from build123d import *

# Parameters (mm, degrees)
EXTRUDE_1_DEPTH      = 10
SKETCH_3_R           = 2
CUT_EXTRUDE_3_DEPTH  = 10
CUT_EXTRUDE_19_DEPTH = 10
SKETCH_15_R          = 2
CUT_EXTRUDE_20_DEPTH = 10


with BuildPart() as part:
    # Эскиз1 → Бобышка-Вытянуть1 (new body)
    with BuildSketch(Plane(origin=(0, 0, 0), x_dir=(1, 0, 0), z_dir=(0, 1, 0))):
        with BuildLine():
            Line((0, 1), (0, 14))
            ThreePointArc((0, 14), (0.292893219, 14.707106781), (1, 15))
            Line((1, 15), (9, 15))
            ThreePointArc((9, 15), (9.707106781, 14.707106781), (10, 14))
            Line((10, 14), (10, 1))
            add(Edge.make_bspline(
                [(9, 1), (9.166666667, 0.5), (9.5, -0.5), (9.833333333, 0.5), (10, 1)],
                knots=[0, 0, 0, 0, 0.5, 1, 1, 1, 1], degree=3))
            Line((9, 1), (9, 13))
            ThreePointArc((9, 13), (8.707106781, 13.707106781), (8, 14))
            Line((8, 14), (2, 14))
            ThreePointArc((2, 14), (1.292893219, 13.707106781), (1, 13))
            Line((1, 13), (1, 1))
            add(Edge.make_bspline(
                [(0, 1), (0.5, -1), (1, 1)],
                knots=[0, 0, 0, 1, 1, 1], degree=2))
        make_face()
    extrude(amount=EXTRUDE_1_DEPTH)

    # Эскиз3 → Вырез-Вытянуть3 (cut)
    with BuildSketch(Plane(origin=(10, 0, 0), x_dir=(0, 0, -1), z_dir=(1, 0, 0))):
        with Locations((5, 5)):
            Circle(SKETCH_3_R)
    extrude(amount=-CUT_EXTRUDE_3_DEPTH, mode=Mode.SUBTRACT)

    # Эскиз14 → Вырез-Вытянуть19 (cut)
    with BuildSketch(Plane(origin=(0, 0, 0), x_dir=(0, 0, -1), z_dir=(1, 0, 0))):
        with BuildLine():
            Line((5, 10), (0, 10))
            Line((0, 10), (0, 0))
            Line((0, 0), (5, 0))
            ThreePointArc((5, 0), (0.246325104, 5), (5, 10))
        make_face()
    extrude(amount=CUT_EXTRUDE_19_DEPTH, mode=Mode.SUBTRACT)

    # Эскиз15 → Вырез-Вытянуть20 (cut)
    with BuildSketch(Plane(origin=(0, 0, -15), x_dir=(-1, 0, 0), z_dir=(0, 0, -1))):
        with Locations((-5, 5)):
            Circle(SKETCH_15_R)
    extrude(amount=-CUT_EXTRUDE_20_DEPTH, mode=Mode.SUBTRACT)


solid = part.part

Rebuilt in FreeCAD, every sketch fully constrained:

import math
import FreeCAD as App
import Part
import Sketcher

V = App.Vector
Q = App.Units.Quantity

doc = App.newDocument("Part")
body = doc.addObject("PartDesign::Body", "Body")

# Sketch on XZ plane
sketch1 = doc.addObject("Sketcher::SketchObject", "Sketch")
body.addObject(sketch1)
sketch1.AttachmentSupport = (doc.XZ_Plane, [""])
sketch1.MapMode = "FlatFace"
sketch1.addGeometry([
    Part.LineSegment(V(0, -14, 0), V(0, -1, 0)),  # 0
    Part.BSplineCurve([V(0, -1, 0), V(0.5, 1, 0), V(1, -1, 0)], [3, 3], [0, 1], False, 2, [1, 1, 1], False),  # 1
    Part.LineSegment(V(1, -1, 0), V(1, -13, 0)),  # 2
    Part.ArcOfCircle(Part.Circle(V(2, -13, 0), V(0, 0, 1), 1), math.radians(-180), math.radians(-90)),  # 3
    Part.LineSegment(V(2, -14, 0), V(8, -14, 0)),  # 4
    Part.ArcOfCircle(Part.Circle(V(8, -13, 0), V(0, 0, 1), 1), math.radians(-90), math.radians(0)),  # 5
    Part.LineSegment(V(9, -13, 0), V(9, -1, 0)),  # 6
    Part.BSplineCurve([V(9, -1, 0), V(9.166667, -0.5, 0), V(9.5, 0.5, 0), V(9.833333, -0.5, 0), V(10, -1, 0)], [4, 1, 4], [0, 0.5, 1], False, 3, [1, 1, 1, 1, 1], False),  # 7
    Part.LineSegment(V(10, -1, 0), V(10, -14, 0)),  # 8
    Part.ArcOfCircle(Part.Circle(V(9, -14, 0), V(0, 0, 1), 1), math.radians(-90), math.radians(0)),  # 9
    Part.LineSegment(V(9, -15, 0), V(1, -15, 0)),  # 10
    Part.ArcOfCircle(Part.Circle(V(1, -14, 0), V(0, 0, 1), 1), math.radians(-180), math.radians(-90)),  # 11
], False)
sketch1.addConstraint([
    Sketcher.Constraint("Block", 1),
    Sketcher.Constraint("Block", 7),
    Sketcher.Constraint("Coincident", 0, 2, 1, 1),
    Sketcher.Constraint("Coincident", 1, 2, 2, 1),
    Sketcher.Constraint("Coincident", 2, 2, 3, 1),
    Sketcher.Constraint("Coincident", 3, 2, 4, 1),
    Sketcher.Constraint("Coincident", 4, 2, 5, 1),
    Sketcher.Constraint("Coincident", 5, 2, 6, 1),
    Sketcher.Constraint("Coincident", 6, 2, 7, 1),
    Sketcher.Constraint("Coincident", 7, 2, 8, 1),
    Sketcher.Constraint("Coincident", 8, 2, 9, 2),
    Sketcher.Constraint("Coincident", 9, 1, 10, 1),
    Sketcher.Constraint("Coincident", 10, 2, 11, 2),
    Sketcher.Constraint("Coincident", 11, 1, 0, 1),
    Sketcher.Constraint("Vertical", 0),
    Sketcher.Constraint("Vertical", 2),
    Sketcher.Constraint("Horizontal", 4),
    Sketcher.Constraint("Vertical", 6),
    Sketcher.Constraint("Vertical", 8),
    Sketcher.Constraint("Horizontal", 10),
    Sketcher.Constraint("Radius", 3, Q("1 mm")),
    Sketcher.Constraint("Radius", 5, Q("1 mm")),
    Sketcher.Constraint("Radius", 9, Q("1 mm")),
    Sketcher.Constraint("Radius", 11, Q("1 mm")),
    Sketcher.Constraint("DistanceX", 4, 1, 4, 2, Q("6 mm")),
    Sketcher.Constraint("DistanceX", 10, 2, 10, 1, Q("8 mm")),
    Sketcher.Constraint("DistanceY", 0, 1, 0, 2, Q("13 mm")),
    Sketcher.Constraint("DistanceY", 2, 2, 2, 1, Q("12 mm")),
    Sketcher.Constraint("DistanceY", 6, 1, 6, 2, Q("12 mm")),
    Sketcher.Constraint("DistanceY", 8, 2, 8, 1, Q("13 mm")),
    Sketcher.Constraint("DistanceY", 3, 3, -1, 1, Q("13 mm")),
    Sketcher.Constraint("DistanceY", 9, 3, -1, 1, Q("14 mm")),
    Sketcher.Constraint("DistanceX", -1, 1, 3, 2, Q("2 mm")),
    Sketcher.Constraint("DistanceX", -1, 1, 9, 1, Q("9 mm")),
])
pad1 = doc.addObject("PartDesign::Pad", "Pad")
body.addObject(pad1)
pad1.Profile = sketch1
pad1.Length = 10
pad1.Reversed = True

# Sketch on YZ plane
sketch2 = doc.addObject("Sketcher::SketchObject", "Sketch001")
body.addObject(sketch2)
sketch2.AttachmentSupport = (doc.YZ_Plane, [""])
sketch2.MapMode = "FlatFace"
sketch2.AttachmentOffset = App.Placement(V(0, 0, 10), App.Rotation())
sketch2.addGeometry(Part.Circle(V(5, -5, 0), V(0, 0, 1), 2), False)
sketch2.addConstraint([
    Sketcher.Constraint("Diameter", 0, Q("4 mm")),
    Sketcher.Constraint("DistanceX", -1, 1, 0, 3, Q("5 mm")),
    Sketcher.Constraint("DistanceY", 0, 3, -1, 1, Q("5 mm")),
])
pocket1 = doc.addObject("PartDesign::Pocket", "Pocket")
body.addObject(pocket1)
pocket1.Profile = sketch2
pocket1.Length = 10

# Sketch on YZ plane
sketch3 = doc.addObject("Sketcher::SketchObject", "Sketch002")
body.addObject(sketch3)
sketch3.AttachmentSupport = (doc.YZ_Plane, [""])
sketch3.MapMode = "FlatFace"
sketch3.addGeometry([
    Part.LineSegment(V(10, -5, 0), V(10, 0, 0)),
    Part.LineSegment(V(10, 0, 0), V(0, 0, 0)),
    Part.LineSegment(V(0, 0, 0), V(0, -5, 0)),
    Part.ArcOfCircle(Part.Circle(V(5, -5, 0), V(0, 0, 1), 5), math.radians(3), math.radians(177)),
], False)
sketch3.addConstraint([
    Sketcher.Constraint("Coincident", 0, 2, 1, 1),
    Sketcher.Constraint("Coincident", 1, 2, 2, 1),
    Sketcher.Constraint("Coincident", 2, 2, 3, 2),
    Sketcher.Constraint("Coincident", 3, 1, 0, 1),
    Sketcher.Constraint("Vertical", 0),
    Sketcher.Constraint("Horizontal", 1),
    Sketcher.Constraint("Vertical", 2),
    Sketcher.Constraint("Coincident", 1, 2, -1, 1),
    Sketcher.Constraint("Horizontal", 2, 2, 3, 1),
    Sketcher.Constraint("DistanceX", 1, 2, 1, 1, Q("10 mm")),
    Sketcher.Constraint("DistanceY", 0, 1, 0, 2, Q("5 mm")),
    Sketcher.Constraint("Radius", 3, Q("5.006382 mm")),
])
pocket2 = doc.addObject("PartDesign::Pocket", "Pocket001")
body.addObject(pocket2)
pocket2.Profile = sketch3
pocket2.Length = 10
pocket2.Reversed = True

# Sketch on XY plane
sketch4 = doc.addObject("Sketcher::SketchObject", "Sketch003")
body.addObject(sketch4)
sketch4.AttachmentSupport = (doc.XY_Plane, [""])
sketch4.MapMode = "FlatFace"
sketch4.AttachmentOffset = App.Placement(V(0, 0, -15), App.Rotation())
sketch4.addGeometry(Part.Circle(V(5, 5, 0), V(0, 0, 1), 2), False)
sketch4.addConstraint([
    Sketcher.Constraint("Diameter", 0, Q("4 mm")),
    Sketcher.Constraint("DistanceX", -1, 1, 0, 3, Q("5 mm")),
    Sketcher.Constraint("DistanceY", -1, 1, 0, 3, Q("5 mm")),
])
pocket3 = doc.addObject("PartDesign::Pocket", "Pocket002")
body.addObject(pocket3)
pocket3.Profile = sketch4
pocket3.Length = 10
pocket3.Reversed = True

doc.recompute()
